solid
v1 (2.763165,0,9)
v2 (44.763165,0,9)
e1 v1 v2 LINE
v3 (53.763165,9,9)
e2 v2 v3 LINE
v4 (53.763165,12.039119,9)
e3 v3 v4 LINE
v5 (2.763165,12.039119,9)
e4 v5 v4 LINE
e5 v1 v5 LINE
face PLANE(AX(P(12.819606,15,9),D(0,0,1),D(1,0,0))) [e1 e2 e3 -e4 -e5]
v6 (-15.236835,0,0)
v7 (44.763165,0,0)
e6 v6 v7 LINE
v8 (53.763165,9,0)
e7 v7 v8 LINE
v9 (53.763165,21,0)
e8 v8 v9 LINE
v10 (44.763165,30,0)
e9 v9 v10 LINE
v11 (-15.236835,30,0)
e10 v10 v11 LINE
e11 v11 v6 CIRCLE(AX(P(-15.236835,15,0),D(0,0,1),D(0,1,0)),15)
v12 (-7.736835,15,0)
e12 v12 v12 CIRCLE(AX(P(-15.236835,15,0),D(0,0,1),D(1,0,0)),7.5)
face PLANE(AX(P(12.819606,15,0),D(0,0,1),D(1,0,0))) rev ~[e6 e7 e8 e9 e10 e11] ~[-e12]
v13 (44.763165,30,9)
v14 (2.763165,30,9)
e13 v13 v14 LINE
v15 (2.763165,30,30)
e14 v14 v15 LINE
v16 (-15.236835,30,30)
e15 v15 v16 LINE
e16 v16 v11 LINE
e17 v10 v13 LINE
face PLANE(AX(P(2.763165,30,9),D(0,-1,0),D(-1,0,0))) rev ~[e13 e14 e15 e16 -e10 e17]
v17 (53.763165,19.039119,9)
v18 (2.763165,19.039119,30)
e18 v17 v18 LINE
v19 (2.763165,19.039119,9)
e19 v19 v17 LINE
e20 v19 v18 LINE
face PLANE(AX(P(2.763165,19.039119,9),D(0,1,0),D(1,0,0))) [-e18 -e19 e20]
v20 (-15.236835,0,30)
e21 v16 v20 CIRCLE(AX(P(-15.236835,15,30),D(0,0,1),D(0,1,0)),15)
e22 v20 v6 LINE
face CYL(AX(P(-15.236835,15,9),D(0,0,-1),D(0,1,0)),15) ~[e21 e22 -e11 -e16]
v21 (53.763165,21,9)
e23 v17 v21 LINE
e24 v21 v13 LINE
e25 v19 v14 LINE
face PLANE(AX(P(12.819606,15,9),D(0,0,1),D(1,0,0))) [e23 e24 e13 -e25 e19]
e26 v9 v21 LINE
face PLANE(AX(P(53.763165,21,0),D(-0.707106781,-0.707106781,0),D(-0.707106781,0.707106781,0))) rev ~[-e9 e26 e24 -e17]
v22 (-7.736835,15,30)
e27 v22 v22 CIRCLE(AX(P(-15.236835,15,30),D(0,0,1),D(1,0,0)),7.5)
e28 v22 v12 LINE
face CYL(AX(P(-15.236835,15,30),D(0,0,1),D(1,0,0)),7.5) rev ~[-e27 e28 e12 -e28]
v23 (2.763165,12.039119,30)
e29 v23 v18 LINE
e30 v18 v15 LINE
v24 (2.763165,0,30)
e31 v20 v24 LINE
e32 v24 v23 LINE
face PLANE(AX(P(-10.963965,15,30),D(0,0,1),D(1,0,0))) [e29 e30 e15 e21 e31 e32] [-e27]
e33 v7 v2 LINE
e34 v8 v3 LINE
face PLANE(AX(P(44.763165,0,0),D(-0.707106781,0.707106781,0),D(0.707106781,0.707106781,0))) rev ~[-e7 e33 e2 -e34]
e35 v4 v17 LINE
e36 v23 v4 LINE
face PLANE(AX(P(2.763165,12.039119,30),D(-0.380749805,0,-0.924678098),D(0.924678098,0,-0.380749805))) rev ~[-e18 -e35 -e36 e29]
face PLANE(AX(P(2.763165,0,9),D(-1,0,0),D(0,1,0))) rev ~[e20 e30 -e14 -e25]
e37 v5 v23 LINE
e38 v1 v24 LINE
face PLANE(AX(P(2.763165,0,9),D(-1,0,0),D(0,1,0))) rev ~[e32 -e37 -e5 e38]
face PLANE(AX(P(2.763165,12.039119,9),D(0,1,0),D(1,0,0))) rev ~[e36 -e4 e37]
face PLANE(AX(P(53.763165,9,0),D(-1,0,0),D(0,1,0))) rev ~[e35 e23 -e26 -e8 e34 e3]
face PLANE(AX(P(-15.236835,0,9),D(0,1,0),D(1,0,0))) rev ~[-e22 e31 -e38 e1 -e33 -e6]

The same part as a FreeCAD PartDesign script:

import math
import FreeCAD as App
import Part
import Sketcher
from FreeCAD import Vector


def add_polygon(sketch, points):
    """Adds a closed chain of lines whose ends are joined by coincident constraints."""
    first, n = sketch.GeometryCount, len(points)
    for a, b in zip(points, points[1:] + points[:1]):
        sketch.addGeometry(Part.LineSegment(App.Vector(*a, 0), App.Vector(*b, 0)), False)
    for i in range(n):
        sketch.addConstraint(Sketcher.Constraint("Coincident", first + i, 2, first + (i + 1) % n, 1))

doc = App.newDocument("Part")
body = doc.addObject("PartDesign::Body", "Body")

sketch1 = body.newObject("Sketcher::SketchObject", "Sketch")
sketch1.AttachmentSupport = (doc.getObject("XY_Plane"), [""])
sketch1.MapMode = "FlatFace"
sketch1.addGeometry(Part.LineSegment(Vector(45, 30, 0), Vector(-15, 30, 0)), False)
sketch1.addGeometry(Part.ArcOfCircle(Part.Circle(Vector(-15, 15, 0), Vector(0, 0, 1), 15), math.radians(90), math.radians(270)), False)
sketch1.addGeometry(Part.LineSegment(Vector(-15, 0, 0), Vector(45, 0, 0)), False)
sketch1.addGeometry(Part.LineSegment(Vector(45, 0, 0), Vector(54, 9, 0)), False)
sketch1.addGeometry(Part.LineSegment(Vector(54, 9, 0), Vector(54, 21, 0)), False)
sketch1.addGeometry(Part.LineSegment(Vector(54, 21, 0), Vector(45, 30, 0)), False)
sketch1.addConstraint(Sketcher.Constraint("Tangent", 0, 2, 1, 1))
sketch1.addConstraint(Sketcher.Constraint("Tangent", 1, 2, 2, 1))
sketch1.addConstraint(Sketcher.Constraint("Coincident", 2, 2, 3, 1))
sketch1.addConstraint(Sketcher.Constraint("Coincident", 3, 2, 4, 1))
sketch1.addConstraint(Sketcher.Constraint("Coincident", 4, 2, 5, 1))
sketch1.addConstraint(Sketcher.Constraint("Coincident", 5, 2, 0, 1))
sketch1.addConstraint(Sketcher.Constraint("Horizontal", 0))
sketch1.addConstraint(Sketcher.Constraint("Horizontal", 2))
sketch1.addConstraint(Sketcher.Constraint("Vertical", 4))
sketch1.addConstraint(Sketcher.Constraint("PointOnObject", 1, 2, -1))
sketch1.addConstraint(Sketcher.Constraint("Perpendicular", 3, 5))
sketch1.addConstraint(Sketcher.Constraint("Vertical", 2, 2, 5, 2))
sketch1.addConstraint(Sketcher.Constraint("Equal", 3, 5))
sketch1.addConstraint(Sketcher.Constraint("Radius", 1, 15.0))
sketch1.addConstraint(Sketcher.Constraint("DistanceX", 0, 2, 0, 1, 60.0))
sketch1.addConstraint(Sketcher.Constraint("DistanceY", 4, 1, 4, 2, 12.0))
sketch1.addConstraint(Sketcher.Constraint("DistanceX", 1, 3, -1, 1, 15.236835))
pad1 = body.newObject("PartDesign::Pad", "Pad")
pad1.Profile = sketch1
pad1.Length = 9

sketch2 = body.newObject("Sketcher::SketchObject", "Sketch001")
sketch2.AttachmentSupport = (doc.getObject("XY_Plane"), [""])
sketch2.MapMode = "FlatFace"
sketch2.AttachmentOffset = App.Placement(Vector(0, 0, 9), App.Rotation())
sketch2.addGeometry(Part.LineSegment(Vector(-15, 0, 0), Vector(3, 0, 0)), False)
sketch2.addGeometry(Part.LineSegment(Vector(3, 0, 0), Vector(3, 30, 0)), False)
sketch2.addGeometry(Part.LineSegment(Vector(3, 30, 0), Vector(-15, 30, 0)), False)
sketch2.addGeometry(Part.ArcOfCircle(Part.Circle(Vector(-15, 15, 0), Vector(0, 0, 1), 15), math.radians(90), math.radians(270)), False)
sketch2.addConstraint(Sketcher.Constraint("Coincident", 0, 2, 1, 1))
sketch2.addConstraint(Sketcher.Constraint("Coincident", 1, 2, 2, 1))
sketch2.addConstraint(Sketcher.Constraint("Tangent", 2, 2, 3, 1))
sketch2.addConstraint(Sketcher.Constraint("Tangent", 3, 2, 0, 1))
sketch2.addConstraint(Sketcher.Constraint("Horizontal", 0))
sketch2.addConstraint(Sketcher.Constraint("Vertical", 1))
sketch2.addConstraint(Sketcher.Constraint("Horizontal", 2))
sketch2.addConstraint(Sketcher.Constraint("PointOnObject", 0, 2, -1))
sketch2.addConstraint(Sketcher.Constraint("Radius", 3, 15.0))
sketch2.addConstraint(Sketcher.Constraint("DistanceX", 0, 1, 0, 2, 18.0))
sketch2.addConstraint(Sketcher.Constraint("DistanceX", 3, 3, -1, 1, 15.236835))
pad2 = body.newObject("PartDesign::Pad", "Pad001")
pad2.Profile = sketch2
pad2.Length = 21

sketch3 = body.newObject("Sketcher::SketchObject", "Sketch002")
sketch3.AttachmentSupport = (doc.getObject("XY_Plane"), [""])
sketch3.MapMode = "FlatFace"
sketch3.AttachmentOffset = App.Placement(Vector(0, 0, 30), App.Rotation())
sketch3.addGeometry(Part.Circle(Vector(-15, 15, 0), Vector(0, 0, 1), 8), False)
sketch3.addConstraint(Sketcher.Constraint("Diameter", 0, 15.0))
sketch3.addConstraint(Sketcher.Constraint("DistanceY", -1, 1, 0, 3, 15.0))
sketch3.addConstraint(Sketcher.Constraint("DistanceX", 0, 3, -1, 1, 15.236835))
pocket1 = body.newObject("PartDesign::Pocket", "Pocket")
pocket1.Profile = sketch3
pocket1.Length = 70.3

sketch4 = body.newObject("Sketcher::SketchObject", "Sketch003")
sketch4.AttachmentSupport = (doc.getObject("XY_Plane"), [""])
sketch4.MapMode = "FlatFace"
sketch4.AttachmentOffset = App.Placement(Vector(0, 0, 9), App.Rotation())
add_polygon(sketch4, [(3, 19), (3, 12), (54, 12), (54, 19)])
sketch4.addConstraint(Sketcher.Constraint("Vertical", 0))
sketch4.addConstraint(Sketcher.Constraint("Horizontal", 1))
sketch4.addConstraint(Sketcher.Constraint("Vertical", 2))
sketch4.addConstraint(Sketcher.Constraint("Horizontal", 3))
sketch4.addConstraint(Sketcher.Constraint("DistanceX", 1, 1, 1, 2, 51.0))
sketch4.addConstraint(Sketcher.Constraint("DistanceY", 0, 2, 0, 1, 7.0))
sketch4.addConstraint(Sketcher.Constraint("DistanceY", -1, 1, 0, 2, 12.039119))
sketch4.addConstraint(Sketcher.Constraint("DistanceX", -1, 1, 0, 2, 2.763165))
pad3 = body.newObject("PartDesign::Pad", "Pad002")
pad3.Profile = sketch4
pad3.Length = 21

sketch5 = body.newObject("Sketcher::SketchObject", "Sketch004")
sketch5.AttachmentSupport = (doc.getObject("XZ_Plane"), [""])
sketch5.MapMode = "FlatFace"
sketch5.AttachmentOffset = App.Placement(Vector(0, 0, -12.039119), App.Rotation())
add_polygon(sketch5, [(54, 30), (3, 30), (54, 9)])
sketch5.addConstraint(Sketcher.Constraint("Horizontal", 0))
sketch5.addConstraint(Sketcher.Constraint("Vertical", 2))
sketch5.addConstraint(Sketcher.Constraint("DistanceX", 0, 2, 0, 1, 51.0))
sketch5.addConstraint(Sketcher.Constraint("DistanceY", 2, 1, 2, 2, 21.0))
sketch5.addConstraint(Sketcher.Constraint("DistanceY", -1, 1, 0, 2, 30.0))
sketch5.addConstraint(Sketcher.Constraint("DistanceX", -1, 1, 0, 2, 2.763165))
pocket2 = body.newObject("PartDesign::Pocket", "Pocket001")
pocket2.Profile = sketch5
pocket2.Length = 25

doc.recompute()
